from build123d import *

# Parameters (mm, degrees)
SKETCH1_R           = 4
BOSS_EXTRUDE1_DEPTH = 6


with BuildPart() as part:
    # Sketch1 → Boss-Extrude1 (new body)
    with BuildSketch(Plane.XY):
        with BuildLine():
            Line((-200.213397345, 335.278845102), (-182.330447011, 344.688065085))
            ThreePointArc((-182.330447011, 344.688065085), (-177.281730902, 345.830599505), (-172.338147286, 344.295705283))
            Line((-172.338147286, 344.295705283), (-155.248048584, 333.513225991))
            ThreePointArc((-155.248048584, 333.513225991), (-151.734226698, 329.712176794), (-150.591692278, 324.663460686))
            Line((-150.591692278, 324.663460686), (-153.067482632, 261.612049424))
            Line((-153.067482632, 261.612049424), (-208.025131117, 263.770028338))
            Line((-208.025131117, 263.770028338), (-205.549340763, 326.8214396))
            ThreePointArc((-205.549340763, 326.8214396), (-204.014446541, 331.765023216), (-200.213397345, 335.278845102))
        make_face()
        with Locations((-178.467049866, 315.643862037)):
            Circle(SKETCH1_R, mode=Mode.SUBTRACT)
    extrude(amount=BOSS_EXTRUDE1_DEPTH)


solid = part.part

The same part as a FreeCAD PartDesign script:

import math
import FreeCAD as App
import Part
import Sketcher

V = App.Vector

doc = App.newDocument("Part")
body = doc.addObject("PartDesign::Body", "Body")

sketch1 = body.newObject("Sketcher::SketchObject", "Sketch")
sketch1.AttachmentSupport = (doc.getObject("XY_Plane"), [""])
sketch1.MapMode = "FlatFace"
sketch1.addGeometry([
    Part.LineSegment(V(-182.3, 344.7, 0), V(-200.2, 335.3, 0)),
    Part.ArcOfCircle(Part.Circle(V(-195.6, 326.4, 0), V(0, 0, 1), 10), math.radians(118), math.radians(178)),
    Part.LineSegment(V(-205.5, 326.8, 0), V(-208, 263.8, 0)),
    Part.LineSegment(V(-208, 263.8, 0), V(-153.1, 261.6, 0)),
    Part.LineSegment(V(-153.1, 261.6, 0), V(-150.6, 324.7, 0)),
    Part.ArcOfCircle(Part.Circle(V(-160.6, 325.1, 0), V(0, 0, 1), 10), math.radians(-2), math.radians(58)),
    Part.LineSegment(V(-155.2, 333.5, 0), V(-172.3, 344.3, 0)),
    Part.ArcOfCircle(Part.Circle(V(-177.7, 335.8, 0), V(0, 0, 1), 10), math.radians(58), math.radians(118)),
    Part.Circle(V(-178.5, 315.6, 0), V(0, 0, 1), 4),
], False)
sketch1.addConstraint([
    Sketcher.Constraint("Tangent", 0, 2, 1, 1),
    Sketcher.Constraint("Tangent", 1, 2, 2, 1),
    Sketcher.Constraint("Coincident", 2, 2, 3, 1),
    Sketcher.Constraint("Coincident", 3, 2, 4, 1),
    Sketcher.Constraint("Tangent", 4, 2, 5, 1),
    Sketcher.Constraint("Tangent", 5, 2, 6, 1),
    Sketcher.Constraint("Tangent", 6, 2, 7, 1),
    Sketcher.Constraint("Tangent", 7, 2, 0, 1),
    Sketcher.Constraint("Equal", 1, 5),
    Sketcher.Constraint("Equal", 5, 7),
    Sketcher.Constraint("Perpendicular", 2, 3),
    Sketcher.Constraint("Perpendicular", 3, 4),
    Sketcher.Constraint("Equal", 2, 4),
    Sketcher.Constraint("Equal", 0, 6),
    Sketcher.Constraint("Diameter", 8, 8.0),
    Sketcher.Constraint("Radius", 1, 10.0),
    Sketcher.Constraint("Distance", 3, 55.0),
    Sketcher.Constraint("Distance", 2, 63.1),
    Sketcher.Constraint("DistanceX", 8, 3, 5, 2, 23.219001),
    Sketcher.Constraint("DistanceY", -1, 1, 7, 3, 335.8383),
    Sketcher.Constraint("DistanceX", 7, 3, 5, 3, 17.090099),
    Sketcher.Constraint("DistanceY", 8, 3, 4, 2, 9.019599),
    Sketcher.Constraint("DistanceX", 7, 2, 6, 2, 9.9923),
    Sketcher.Constraint("DistanceX", 1, 3, -1, 1, 195.557041),
])
pad1 = body.newObject("PartDesign::Pad", "Pad")
pad1.Profile = sketch1
pad1.Length = 6

doc.recompute()
